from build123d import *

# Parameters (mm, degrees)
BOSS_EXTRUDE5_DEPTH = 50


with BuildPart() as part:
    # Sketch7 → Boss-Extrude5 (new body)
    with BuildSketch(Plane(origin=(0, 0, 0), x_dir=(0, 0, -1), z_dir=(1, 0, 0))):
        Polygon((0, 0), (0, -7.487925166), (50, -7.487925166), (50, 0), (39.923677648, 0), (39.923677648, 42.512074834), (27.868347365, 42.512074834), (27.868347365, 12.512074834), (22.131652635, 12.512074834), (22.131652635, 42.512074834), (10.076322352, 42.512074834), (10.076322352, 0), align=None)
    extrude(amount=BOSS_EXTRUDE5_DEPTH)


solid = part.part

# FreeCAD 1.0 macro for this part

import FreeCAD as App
import Part
import Sketcher

V = App.Vector


def add_polygon(sketch, points):
    """Adds a closed chain of lines whose ends are joined by coincident constraints."""
    first, n = sketch.GeometryCount, len(points)
    for a, b in zip(points, points[1:] + points[:1]):
        sketch.addGeometry(Part.LineSegment(App.Vector(*a, 0), App.Vector(*b, 0)), False)
    for i in range(n):
        sketch.addConstraint(Sketcher.Constraint("Coincident", first + i, 2, first + (i + 1) % n, 1))

doc = App.newDocument("Part")
body = doc.addObject("PartDesign::Body", "Body")

sketch1 = body.newObject("Sketcher::SketchObject", "Sketch")
sketch1.AttachmentSupport = (doc.getObject("YZ_Plane"), [""])
sketch1.MapMode = "FlatFace"
add_polygon(sketch1, [(0, 0), (-7, 0), (-7, -50), (0, -50), (0, -40), (43, -40), (43, -28), (13, -28), (13, -22), (43, -22), (43, -10), (0, -10)])
sketch1.addConstraint([
    Sketcher.Constraint("Horizontal", 0),
    Sketcher.Constraint("Vertical", 1),
    Sketcher.Constraint("Horizontal", 2),
    Sketcher.Constraint("Vertical", 3),
    Sketcher.Constraint("Horizontal", 4),
    Sketcher.Constraint("Vertical", 5),
    Sketcher.Constraint("Horizontal", 6),
    Sketcher.Constraint("Vertical", 7),
    Sketcher.Constraint("Horizontal", 8),
    Sketcher.Constraint("Vertical", 9),
    Sketcher.Constraint("Horizontal", 10),
    Sketcher.Constraint("Vertical", 11),
    Sketcher.Constraint("Coincident", 11, 2, -1, 1),
    Sketcher.Constraint("PointOnObject", 2, 2, -2),
    Sketcher.Constraint("Vertical", 5, 2, 8, 2),
    Sketcher.Constraint("Equal", 5, 9),
    Sketcher.Constraint("Equal", 3, 11),
    Sketcher.Constraint("DistanceX", 6, 2, 6, 1, 30.0),
    Sketcher.Constraint("DistanceY", 1, 2, 1, 1, 50.0),
    Sketcher.Constraint("DistanceX", 1, 2, 4, 2, 50.0),
    Sketcher.Constraint("DistanceY", 5, 1, 5, 2, 12.05533),
    Sketcher.Constraint("DistanceX", 0, 2, 0, 1, 7.487925),
    Sketcher.Constraint("DistanceY", 3, 1, 3, 2, 10.076322),
])
pad1 = body.newObject("PartDesign::Pad", "Pad")
pad1.Profile = sketch1
pad1.Length = 50

doc.recompute()
